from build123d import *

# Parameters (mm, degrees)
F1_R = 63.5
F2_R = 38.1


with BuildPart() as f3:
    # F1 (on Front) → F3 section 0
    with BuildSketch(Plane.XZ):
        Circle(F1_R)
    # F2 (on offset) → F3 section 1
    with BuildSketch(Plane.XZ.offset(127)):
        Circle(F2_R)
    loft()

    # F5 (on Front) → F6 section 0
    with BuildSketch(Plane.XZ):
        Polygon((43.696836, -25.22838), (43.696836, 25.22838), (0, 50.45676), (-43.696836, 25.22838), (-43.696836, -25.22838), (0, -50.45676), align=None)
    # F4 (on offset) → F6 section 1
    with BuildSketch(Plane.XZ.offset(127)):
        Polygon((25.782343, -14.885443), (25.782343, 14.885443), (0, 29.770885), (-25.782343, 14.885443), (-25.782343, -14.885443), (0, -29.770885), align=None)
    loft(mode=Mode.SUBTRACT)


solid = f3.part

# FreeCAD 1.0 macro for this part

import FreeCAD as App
import Part
import Sketcher
from FreeCAD import Vector
Q = App.Units.Quantity


def add_polygon(sketch, points):
    """Adds a closed chain of lines whose ends are joined by coincident constraints."""
    first, n = sketch.GeometryCount, len(points)
    for a, b in zip(points, points[1:] + points[:1]):
        sketch.addGeometry(Part.LineSegment(App.Vector(*a, 0), App.Vector(*b, 0)), False)
    for i in range(n):
        sketch.addConstraint(Sketcher.Constraint("Coincident", first + i, 2, first + (i + 1) % n, 1))

doc = App.newDocument("Part")
params = doc.addObject("Spreadsheet::Sheet", "Params")
for row, (alias, value) in enumerate([
    ("sketch1_diameter", "5 in"),
    ("sketch2_diameter", "3 in"),
], start=1):
    params.set(f"A{row}", alias)
    params.set(f"B{row}", "=" + value)
    params.setAlias(f"B{row}", alias)

body = doc.addObject("PartDesign::Body", "Body")

# Sketch on XZ plane
sketch1 = body.newObject("Sketcher::SketchObject", "Sketch")
sketch1.AttachmentSupport = (doc.getObject("XZ_Plane"), [""])
sketch1.MapMode = "FlatFace"
sketch1.addGeometry(Part.Circle(Vector(0, 0, 0), Vector(0, 0, 1), 64), False)
sketch1.addConstraint([
    Sketcher.Constraint("Coincident", 0, 3, -1, 1),
    Sketcher.Constraint("Diameter", 0, Q("5 in")),
])
sketch1.setExpression("Constraints[1]", "Params.sketch1_diameter")

# Sketch on XZ plane
sketch2 = body.newObject("Sketcher::SketchObject", "Sketch001")
sketch2.AttachmentSupport = (doc.getObject("XZ_Plane"), [""])
sketch2.MapMode = "FlatFace"
sketch2.AttachmentOffset = App.Placement(Vector(0, 0, 5 * 25.4), App.Rotation())
sketch2.addGeometry(Part.Circle(Vector(0, 0, 0), Vector(0, 0, 1), 38), False)
sketch2.addConstraint([
    Sketcher.Constraint("Coincident", 0, 3, -1, 1),
    Sketcher.Constraint("Diameter", 0, Q("3 in")),
])
sketch2.setExpression("Constraints[1]", "Params.sketch2_diameter")

additiveloft = body.newObject("PartDesign::AdditiveLoft", "AdditiveLoft")
additiveloft.Profile = sketch1
additiveloft.Sections = [sketch2]

# Sketch on XZ plane
sketch3 = body.newObject("Sketcher::SketchObject", "Sketch002")
sketch3.AttachmentSupport = (doc.getObject("XZ_Plane"), [""])
sketch3.MapMode = "FlatFace"
add_polygon(sketch3, [(44, -25), (44, 25), (0, 50), (-44, 25), (-44, -25), (0, -50)])  # lines 0-5
sketch3.addConstraint([
    Sketcher.Constraint("Vertical", 0),
    Sketcher.Constraint("Vertical", 3),
    Sketcher.Constraint("Symmetric", 0, 2, 3, 2, -1, 1),
    Sketcher.Constraint("Symmetric", 1, 2, 4, 2, -1, 1),
    Sketcher.Constraint("PointOnObject", 1, 2, -2),
    Sketcher.Constraint("Parallel", 2, 5),
    Sketcher.Constraint("Horizontal", 0, 2, 2, 2),
    Sketcher.Constraint("Angle", 1, Q("150 deg")),
    Sketcher.Constraint("DistanceY", 0, 1, 0, 2, Q("50.45676 mm")),
    Sketcher.Constraint("Distance", 1, Q("50.45676 mm")),
])

# Sketch on XZ plane
sketch4 = body.newObject("Sketcher::SketchObject", "Sketch003")
sketch4.AttachmentSupport = (doc.getObject("XZ_Plane"), [""])
sketch4.MapMode = "FlatFace"
sketch4.AttachmentOffset = App.Placement(Vector(0, 0, 5 * 25.4), App.Rotation())
add_polygon(sketch4, [(26, -15), (26, 15), (0, 30), (-26, 15), (-26, -15), (0, -30)])  # lines 0-5
sketch4.addConstraint([
    Sketcher.Constraint("Vertical", 0),
    Sketcher.Constraint("Vertical", 3),
    Sketcher.Constraint("Symmetric", 0, 2, 3, 2, -1, 1),
    Sketcher.Constraint("Symmetric", 1, 2, 4, 2, -1, 1),
    Sketcher.Constraint("PointOnObject", 1, 2, -2),
    Sketcher.Constraint("Parallel", 2, 5),
    Sketcher.Constraint("Horizontal", 0, 2, 2, 2),
    Sketcher.Constraint("Angle", 1, Q("150.000001 deg")),
    Sketcher.Constraint("DistanceY", 0, 1, 0, 2, Q("29.770886 mm")),
    Sketcher.Constraint("DistanceY", 3, 2, 1, 2, Q("44.656328 mm")),
])

subtractiveloft = body.newObject("PartDesign::SubtractiveLoft", "SubtractiveLoft")
subtractiveloft.Profile = sketch3
subtractiveloft.Sections = [sketch4]

doc.recompute()
